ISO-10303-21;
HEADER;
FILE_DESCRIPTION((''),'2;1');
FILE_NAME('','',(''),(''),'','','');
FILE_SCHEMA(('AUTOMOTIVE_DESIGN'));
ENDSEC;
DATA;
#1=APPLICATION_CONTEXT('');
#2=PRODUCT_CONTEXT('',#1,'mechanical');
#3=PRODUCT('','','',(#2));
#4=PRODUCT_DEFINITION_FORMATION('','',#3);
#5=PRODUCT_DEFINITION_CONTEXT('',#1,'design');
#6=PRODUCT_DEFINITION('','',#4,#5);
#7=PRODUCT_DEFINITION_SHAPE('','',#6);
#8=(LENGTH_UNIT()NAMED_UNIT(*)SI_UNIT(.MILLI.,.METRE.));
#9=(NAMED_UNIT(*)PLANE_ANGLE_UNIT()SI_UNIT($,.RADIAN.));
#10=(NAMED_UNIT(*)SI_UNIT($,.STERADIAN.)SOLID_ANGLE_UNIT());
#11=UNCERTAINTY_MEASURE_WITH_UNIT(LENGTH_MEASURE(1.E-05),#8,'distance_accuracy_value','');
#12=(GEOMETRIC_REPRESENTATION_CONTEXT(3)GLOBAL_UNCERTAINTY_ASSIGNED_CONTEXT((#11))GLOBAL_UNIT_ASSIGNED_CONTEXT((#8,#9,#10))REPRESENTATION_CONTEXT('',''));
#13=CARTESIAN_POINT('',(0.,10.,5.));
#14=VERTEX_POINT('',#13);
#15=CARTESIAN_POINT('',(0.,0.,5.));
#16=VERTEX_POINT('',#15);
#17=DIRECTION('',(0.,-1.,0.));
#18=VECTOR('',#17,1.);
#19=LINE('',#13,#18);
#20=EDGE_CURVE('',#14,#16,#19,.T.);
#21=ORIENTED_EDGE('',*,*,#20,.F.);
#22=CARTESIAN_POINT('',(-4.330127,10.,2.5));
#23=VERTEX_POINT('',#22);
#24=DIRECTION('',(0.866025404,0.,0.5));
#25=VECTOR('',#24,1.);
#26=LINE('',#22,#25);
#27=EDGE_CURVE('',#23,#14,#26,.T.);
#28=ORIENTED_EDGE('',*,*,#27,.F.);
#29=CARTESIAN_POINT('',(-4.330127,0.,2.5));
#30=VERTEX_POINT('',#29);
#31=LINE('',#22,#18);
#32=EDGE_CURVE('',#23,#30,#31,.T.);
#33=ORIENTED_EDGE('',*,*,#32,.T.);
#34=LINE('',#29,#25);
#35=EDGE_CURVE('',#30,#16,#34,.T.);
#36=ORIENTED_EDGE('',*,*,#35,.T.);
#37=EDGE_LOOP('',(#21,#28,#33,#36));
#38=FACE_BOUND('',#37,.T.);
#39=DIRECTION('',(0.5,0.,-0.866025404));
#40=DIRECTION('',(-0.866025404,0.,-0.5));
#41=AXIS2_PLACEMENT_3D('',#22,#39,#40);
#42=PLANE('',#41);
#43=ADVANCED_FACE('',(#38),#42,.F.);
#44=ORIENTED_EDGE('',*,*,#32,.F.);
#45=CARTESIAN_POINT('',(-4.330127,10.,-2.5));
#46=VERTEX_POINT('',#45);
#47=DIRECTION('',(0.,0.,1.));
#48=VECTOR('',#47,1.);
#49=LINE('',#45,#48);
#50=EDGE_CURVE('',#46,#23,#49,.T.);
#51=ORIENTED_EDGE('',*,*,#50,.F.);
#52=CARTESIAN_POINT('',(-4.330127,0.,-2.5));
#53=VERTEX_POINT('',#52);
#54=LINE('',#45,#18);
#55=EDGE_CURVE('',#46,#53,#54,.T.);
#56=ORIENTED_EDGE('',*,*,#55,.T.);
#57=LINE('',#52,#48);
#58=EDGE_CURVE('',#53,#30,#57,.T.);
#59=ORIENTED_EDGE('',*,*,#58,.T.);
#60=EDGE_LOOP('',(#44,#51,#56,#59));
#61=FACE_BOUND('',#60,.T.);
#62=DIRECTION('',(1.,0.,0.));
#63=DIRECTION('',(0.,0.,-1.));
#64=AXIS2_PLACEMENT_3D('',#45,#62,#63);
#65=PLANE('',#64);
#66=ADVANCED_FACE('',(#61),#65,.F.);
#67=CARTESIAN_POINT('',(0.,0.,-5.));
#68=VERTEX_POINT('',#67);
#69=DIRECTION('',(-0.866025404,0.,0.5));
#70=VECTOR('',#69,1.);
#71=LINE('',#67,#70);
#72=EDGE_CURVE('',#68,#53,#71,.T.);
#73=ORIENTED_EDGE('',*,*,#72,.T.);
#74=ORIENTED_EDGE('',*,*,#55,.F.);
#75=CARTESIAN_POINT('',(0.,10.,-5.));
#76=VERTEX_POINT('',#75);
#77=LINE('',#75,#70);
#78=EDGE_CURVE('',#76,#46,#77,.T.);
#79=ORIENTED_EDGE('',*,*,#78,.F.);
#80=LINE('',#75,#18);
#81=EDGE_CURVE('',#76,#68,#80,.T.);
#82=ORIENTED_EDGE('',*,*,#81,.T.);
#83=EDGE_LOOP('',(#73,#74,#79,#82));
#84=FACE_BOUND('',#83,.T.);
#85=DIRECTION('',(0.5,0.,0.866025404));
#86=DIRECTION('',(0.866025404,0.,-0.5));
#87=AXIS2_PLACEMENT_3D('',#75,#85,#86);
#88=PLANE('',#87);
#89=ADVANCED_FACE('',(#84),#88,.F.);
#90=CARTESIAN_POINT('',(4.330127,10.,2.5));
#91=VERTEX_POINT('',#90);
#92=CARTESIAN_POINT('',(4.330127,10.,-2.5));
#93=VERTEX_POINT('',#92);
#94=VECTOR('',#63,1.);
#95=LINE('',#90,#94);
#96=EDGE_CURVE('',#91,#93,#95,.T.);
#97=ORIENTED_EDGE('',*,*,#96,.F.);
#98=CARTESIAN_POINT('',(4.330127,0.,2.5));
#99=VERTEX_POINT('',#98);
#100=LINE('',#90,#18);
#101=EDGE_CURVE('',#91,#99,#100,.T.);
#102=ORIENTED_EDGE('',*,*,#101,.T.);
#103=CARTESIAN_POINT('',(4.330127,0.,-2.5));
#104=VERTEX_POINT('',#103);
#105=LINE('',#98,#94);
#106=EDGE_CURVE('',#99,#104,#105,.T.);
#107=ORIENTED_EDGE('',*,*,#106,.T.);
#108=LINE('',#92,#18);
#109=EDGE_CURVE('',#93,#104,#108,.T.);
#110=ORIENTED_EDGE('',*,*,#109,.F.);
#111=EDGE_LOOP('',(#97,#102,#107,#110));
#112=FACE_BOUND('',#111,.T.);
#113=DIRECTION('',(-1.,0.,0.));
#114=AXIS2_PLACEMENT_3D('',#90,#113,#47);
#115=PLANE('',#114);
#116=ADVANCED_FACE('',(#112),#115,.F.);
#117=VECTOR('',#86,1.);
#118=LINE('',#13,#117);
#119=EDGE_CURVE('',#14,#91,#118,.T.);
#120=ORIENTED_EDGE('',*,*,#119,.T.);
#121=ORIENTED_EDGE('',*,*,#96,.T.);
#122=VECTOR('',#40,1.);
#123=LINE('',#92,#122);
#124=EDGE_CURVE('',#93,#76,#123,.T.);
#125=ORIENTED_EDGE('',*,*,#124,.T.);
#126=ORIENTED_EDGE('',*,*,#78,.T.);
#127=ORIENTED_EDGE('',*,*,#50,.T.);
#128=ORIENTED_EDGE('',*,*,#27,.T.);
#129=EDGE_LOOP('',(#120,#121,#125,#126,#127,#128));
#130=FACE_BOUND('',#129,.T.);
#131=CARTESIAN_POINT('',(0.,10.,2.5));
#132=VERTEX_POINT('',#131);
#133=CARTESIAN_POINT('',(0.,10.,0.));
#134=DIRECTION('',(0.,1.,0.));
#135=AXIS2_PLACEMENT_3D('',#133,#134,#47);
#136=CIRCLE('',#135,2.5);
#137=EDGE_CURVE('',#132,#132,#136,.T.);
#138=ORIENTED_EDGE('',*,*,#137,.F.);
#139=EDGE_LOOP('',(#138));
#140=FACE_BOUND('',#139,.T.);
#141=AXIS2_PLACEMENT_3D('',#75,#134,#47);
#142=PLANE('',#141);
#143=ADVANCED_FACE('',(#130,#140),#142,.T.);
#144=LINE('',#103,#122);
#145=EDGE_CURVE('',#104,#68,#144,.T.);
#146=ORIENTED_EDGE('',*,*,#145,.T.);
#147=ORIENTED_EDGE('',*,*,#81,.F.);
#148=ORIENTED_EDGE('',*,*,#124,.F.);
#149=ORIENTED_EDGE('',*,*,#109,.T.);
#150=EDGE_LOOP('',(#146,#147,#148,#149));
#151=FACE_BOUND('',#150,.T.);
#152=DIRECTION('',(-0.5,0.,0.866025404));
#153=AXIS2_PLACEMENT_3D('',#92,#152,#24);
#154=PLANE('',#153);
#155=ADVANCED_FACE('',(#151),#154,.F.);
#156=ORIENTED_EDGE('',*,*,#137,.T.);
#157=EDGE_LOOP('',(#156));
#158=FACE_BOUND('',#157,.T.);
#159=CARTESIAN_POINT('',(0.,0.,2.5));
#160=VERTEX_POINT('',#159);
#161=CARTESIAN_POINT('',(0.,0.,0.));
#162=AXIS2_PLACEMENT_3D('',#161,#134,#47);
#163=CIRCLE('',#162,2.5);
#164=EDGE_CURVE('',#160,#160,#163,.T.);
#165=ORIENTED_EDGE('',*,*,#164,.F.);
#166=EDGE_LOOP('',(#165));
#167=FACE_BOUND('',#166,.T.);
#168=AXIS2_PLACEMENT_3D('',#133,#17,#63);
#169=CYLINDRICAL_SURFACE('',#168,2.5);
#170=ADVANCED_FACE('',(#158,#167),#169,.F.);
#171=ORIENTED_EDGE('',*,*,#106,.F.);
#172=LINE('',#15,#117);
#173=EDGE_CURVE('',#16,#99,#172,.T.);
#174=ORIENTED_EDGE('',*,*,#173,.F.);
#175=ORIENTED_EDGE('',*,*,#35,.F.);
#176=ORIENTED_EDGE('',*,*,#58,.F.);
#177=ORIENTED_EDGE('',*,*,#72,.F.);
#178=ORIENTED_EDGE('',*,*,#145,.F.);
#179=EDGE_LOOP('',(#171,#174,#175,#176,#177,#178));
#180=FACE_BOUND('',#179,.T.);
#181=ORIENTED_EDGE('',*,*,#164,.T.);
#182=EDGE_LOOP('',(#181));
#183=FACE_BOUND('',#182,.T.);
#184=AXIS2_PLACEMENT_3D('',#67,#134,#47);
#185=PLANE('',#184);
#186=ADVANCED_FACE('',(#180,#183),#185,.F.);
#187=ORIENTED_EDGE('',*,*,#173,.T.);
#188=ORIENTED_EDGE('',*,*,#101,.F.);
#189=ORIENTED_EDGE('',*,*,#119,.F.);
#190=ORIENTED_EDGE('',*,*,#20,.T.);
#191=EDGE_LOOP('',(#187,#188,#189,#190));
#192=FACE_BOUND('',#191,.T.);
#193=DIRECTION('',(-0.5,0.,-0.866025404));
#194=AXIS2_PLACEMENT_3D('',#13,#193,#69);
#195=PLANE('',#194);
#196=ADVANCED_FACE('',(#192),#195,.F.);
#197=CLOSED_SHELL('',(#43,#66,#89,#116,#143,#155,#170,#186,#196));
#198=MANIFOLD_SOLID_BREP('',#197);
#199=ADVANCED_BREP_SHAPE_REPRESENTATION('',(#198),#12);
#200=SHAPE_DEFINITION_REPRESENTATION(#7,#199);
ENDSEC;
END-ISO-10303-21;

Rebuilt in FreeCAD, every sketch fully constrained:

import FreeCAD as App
import Part
import Sketcher

V = App.Vector
Q = App.Units.Quantity


def add_polygon(sketch, points):
    """Adds a closed chain of lines whose ends are joined by coincident constraints."""
    first, n = sketch.GeometryCount, len(points)
    for a, b in zip(points, points[1:] + points[:1]):
        sketch.addGeometry(Part.LineSegment(App.Vector(*a, 0), App.Vector(*b, 0)), False)
    for i in range(n):
        sketch.addConstraint(Sketcher.Constraint("Coincident", first + i, 2, first + (i + 1) % n, 1))

doc = App.newDocument("Part")
params = doc.addObject("Spreadsheet::Sheet", "Params")
for row, (alias, value) in enumerate([
    ("sketch1_diameter", "5 mm"),
    ("sketch1_height", "5 mm"),
    ("sketch1_length", "5 mm"),
    ("pad1_length", "10 mm"),
], start=1):
    params.set(f"A{row}", alias)
    params.set(f"B{row}", "=" + value)
    params.setAlias(f"B{row}", alias)

body = doc.addObject("PartDesign::Body", "Body")

sketch1 = body.newObject("Sketcher::SketchObject", "Sketch")
sketch1.AttachmentSupport = (doc.getObject("XZ_Plane"), [""])
sketch1.MapMode = "FlatFace"
add_polygon(sketch1, [(0, -5), (-4.3, -2.5), (-4.3, 2.5), (0, 5), (4.3, 2.5), (4.3, -2.5)])
sketch1.addGeometry(Part.Circle(V(0, 0, 0), V(0, 0, 1), 2.5), False)
sketch1.addConstraint(Sketcher.Constraint("Vertical", 1))
sketch1.addConstraint(Sketcher.Constraint("Vertical", 4))
sketch1.addConstraint(Sketcher.Constraint("Coincident", 6, 3, -1, 1))
sketch1.addConstraint(Sketcher.Constraint("Symmetric", 0, 2, 3, 2, -1, 1))
sketch1.addConstraint(Sketcher.Constraint("Symmetric", 2, 2, 5, 2, -1, 1))
sketch1.addConstraint(Sketcher.Constraint("PointOnObject", 2, 2, -2))
sketch1.addConstraint(Sketcher.Constraint("Parallel", 2, 5))
sketch1.addConstraint(Sketcher.Constraint("Horizontal", 1, 2, 3, 2))
sketch1.addConstraint(Sketcher.Constraint("Diameter", 6, Q("5 mm")))
sketch1.addConstraint(Sketcher.Constraint("DistanceY", 1, 1, 1, 2, Q("5 mm")))
sketch1.addConstraint(Sketcher.Constraint("Angle", 0, Q("150 deg")))
sketch1.addConstraint(Sketcher.Constraint("Distance", 0, Q("5 mm")))
sketch1.setExpression("Constraints[14]", "Params.sketch1_diameter")
sketch1.setExpression("Constraints[15]", "Params.sketch1_height")
sketch1.setExpression("Constraints[17]", "Params.sketch1_length")
pad1 = body.newObject("PartDesign::Pad", "Pad")
pad1.Profile = sketch1
pad1.setExpression("Length", "Params.pad1_length")
pad1.Reversed = True

doc.recompute()
